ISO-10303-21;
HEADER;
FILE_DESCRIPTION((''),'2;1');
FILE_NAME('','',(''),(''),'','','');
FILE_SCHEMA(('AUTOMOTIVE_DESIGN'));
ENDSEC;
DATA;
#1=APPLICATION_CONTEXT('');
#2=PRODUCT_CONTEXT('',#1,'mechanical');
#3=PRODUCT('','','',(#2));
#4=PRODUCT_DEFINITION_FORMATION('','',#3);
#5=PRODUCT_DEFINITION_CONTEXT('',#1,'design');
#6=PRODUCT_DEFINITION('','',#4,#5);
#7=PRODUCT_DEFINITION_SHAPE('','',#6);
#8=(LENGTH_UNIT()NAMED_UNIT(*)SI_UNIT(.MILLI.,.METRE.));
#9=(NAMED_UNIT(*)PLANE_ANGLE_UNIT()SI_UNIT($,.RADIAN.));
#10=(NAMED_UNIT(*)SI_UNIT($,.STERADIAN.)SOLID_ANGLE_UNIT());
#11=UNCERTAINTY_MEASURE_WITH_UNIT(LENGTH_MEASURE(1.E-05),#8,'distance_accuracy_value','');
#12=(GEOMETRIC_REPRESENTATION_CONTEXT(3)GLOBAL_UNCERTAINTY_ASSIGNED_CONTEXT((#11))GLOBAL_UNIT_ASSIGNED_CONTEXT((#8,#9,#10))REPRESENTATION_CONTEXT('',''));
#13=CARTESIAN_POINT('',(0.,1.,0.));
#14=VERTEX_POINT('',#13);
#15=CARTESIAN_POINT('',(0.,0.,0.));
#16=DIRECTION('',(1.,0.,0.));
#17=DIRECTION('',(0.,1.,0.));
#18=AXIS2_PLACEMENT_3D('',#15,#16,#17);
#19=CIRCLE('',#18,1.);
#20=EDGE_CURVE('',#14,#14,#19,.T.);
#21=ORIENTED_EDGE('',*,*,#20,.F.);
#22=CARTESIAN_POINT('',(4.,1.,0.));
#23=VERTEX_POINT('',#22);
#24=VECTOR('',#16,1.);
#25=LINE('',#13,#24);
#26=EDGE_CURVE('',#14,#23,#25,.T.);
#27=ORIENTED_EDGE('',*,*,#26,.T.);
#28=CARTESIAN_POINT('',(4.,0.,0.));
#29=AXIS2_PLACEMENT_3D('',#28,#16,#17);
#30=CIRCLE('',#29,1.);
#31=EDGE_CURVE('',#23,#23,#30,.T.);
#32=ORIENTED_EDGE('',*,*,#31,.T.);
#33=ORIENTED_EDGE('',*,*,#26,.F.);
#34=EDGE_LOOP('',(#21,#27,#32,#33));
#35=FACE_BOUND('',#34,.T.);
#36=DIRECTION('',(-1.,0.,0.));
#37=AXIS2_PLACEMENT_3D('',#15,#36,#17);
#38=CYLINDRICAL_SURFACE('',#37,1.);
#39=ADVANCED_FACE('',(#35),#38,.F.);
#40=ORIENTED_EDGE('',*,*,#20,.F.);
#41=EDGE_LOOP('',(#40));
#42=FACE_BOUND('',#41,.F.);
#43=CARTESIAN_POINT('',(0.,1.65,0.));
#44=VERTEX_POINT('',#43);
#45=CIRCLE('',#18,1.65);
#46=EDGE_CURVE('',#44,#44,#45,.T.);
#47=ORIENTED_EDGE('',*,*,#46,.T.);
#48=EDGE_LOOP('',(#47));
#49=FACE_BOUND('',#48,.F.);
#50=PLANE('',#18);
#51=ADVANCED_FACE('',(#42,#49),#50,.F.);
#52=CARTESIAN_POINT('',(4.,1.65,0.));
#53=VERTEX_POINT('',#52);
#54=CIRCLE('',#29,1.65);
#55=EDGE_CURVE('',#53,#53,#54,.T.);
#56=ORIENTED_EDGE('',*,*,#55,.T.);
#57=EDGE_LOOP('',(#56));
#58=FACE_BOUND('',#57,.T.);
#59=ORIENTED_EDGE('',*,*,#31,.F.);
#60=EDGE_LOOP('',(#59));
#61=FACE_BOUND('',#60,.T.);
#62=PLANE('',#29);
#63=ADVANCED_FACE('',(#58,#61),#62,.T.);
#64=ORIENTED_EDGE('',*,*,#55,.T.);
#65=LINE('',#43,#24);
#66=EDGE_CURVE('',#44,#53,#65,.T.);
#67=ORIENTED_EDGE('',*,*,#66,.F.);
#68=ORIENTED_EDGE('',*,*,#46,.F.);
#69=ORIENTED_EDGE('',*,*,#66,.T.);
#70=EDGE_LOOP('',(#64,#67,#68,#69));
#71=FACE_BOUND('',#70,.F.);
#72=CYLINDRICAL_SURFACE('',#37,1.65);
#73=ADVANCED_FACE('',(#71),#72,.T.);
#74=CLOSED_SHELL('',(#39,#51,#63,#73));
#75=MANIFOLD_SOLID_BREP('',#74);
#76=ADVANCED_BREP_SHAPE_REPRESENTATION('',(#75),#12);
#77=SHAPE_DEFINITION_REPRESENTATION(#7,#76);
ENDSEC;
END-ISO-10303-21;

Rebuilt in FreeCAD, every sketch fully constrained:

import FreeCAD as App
import Part
import Sketcher
from FreeCAD import Vector

doc = App.newDocument("Part")
params = doc.addObject("Spreadsheet::Sheet", "Params")
for row, (alias, value) in enumerate([
    ("sketch1_diameter", "2 mm"),
    ("sketch1_diameter2", "3.3 mm"),
    ("pad1_length", "4 mm"),
], start=1):
    params.set(f"A{row}", alias)
    params.set(f"B{row}", "=" + value)
    params.setAlias(f"B{row}", alias)

body = doc.addObject("PartDesign::Body", "Body")

sketch1 = body.newObject("Sketcher::SketchObject", "Sketch")
sketch1.AttachmentSupport = (doc.getObject("YZ_Plane"), [""])
sketch1.MapMode = "FlatFace"
sketch1.addGeometry(Part.Circle(Vector(0, 0, 0), Vector(0, 0, 1), 1.6), False)
sketch1.addGeometry(Part.Circle(Vector(0, 0, 0), Vector(0, 0, 1), 1), False)
sketch1.addConstraint(Sketcher.Constraint("Coincident", 0, 3, -1, 1))
sketch1.addConstraint(Sketcher.Constraint("Coincident", 1, 3, -1, 1))
sketch1.addConstraint(Sketcher.Constraint("Diameter", 1, 2.0))
sketch1.addConstraint(Sketcher.Constraint("Diameter", 0, 3.3))
sketch1.setExpression("Constraints[2]", "Params.sketch1_diameter")
sketch1.setExpression("Constraints[3]", "Params.sketch1_diameter2")
pad1 = body.newObject("PartDesign::Pad", "Pad")
pad1.Profile = sketch1
pad1.setExpression("Length", "Params.pad1_length")

doc.recompute()
